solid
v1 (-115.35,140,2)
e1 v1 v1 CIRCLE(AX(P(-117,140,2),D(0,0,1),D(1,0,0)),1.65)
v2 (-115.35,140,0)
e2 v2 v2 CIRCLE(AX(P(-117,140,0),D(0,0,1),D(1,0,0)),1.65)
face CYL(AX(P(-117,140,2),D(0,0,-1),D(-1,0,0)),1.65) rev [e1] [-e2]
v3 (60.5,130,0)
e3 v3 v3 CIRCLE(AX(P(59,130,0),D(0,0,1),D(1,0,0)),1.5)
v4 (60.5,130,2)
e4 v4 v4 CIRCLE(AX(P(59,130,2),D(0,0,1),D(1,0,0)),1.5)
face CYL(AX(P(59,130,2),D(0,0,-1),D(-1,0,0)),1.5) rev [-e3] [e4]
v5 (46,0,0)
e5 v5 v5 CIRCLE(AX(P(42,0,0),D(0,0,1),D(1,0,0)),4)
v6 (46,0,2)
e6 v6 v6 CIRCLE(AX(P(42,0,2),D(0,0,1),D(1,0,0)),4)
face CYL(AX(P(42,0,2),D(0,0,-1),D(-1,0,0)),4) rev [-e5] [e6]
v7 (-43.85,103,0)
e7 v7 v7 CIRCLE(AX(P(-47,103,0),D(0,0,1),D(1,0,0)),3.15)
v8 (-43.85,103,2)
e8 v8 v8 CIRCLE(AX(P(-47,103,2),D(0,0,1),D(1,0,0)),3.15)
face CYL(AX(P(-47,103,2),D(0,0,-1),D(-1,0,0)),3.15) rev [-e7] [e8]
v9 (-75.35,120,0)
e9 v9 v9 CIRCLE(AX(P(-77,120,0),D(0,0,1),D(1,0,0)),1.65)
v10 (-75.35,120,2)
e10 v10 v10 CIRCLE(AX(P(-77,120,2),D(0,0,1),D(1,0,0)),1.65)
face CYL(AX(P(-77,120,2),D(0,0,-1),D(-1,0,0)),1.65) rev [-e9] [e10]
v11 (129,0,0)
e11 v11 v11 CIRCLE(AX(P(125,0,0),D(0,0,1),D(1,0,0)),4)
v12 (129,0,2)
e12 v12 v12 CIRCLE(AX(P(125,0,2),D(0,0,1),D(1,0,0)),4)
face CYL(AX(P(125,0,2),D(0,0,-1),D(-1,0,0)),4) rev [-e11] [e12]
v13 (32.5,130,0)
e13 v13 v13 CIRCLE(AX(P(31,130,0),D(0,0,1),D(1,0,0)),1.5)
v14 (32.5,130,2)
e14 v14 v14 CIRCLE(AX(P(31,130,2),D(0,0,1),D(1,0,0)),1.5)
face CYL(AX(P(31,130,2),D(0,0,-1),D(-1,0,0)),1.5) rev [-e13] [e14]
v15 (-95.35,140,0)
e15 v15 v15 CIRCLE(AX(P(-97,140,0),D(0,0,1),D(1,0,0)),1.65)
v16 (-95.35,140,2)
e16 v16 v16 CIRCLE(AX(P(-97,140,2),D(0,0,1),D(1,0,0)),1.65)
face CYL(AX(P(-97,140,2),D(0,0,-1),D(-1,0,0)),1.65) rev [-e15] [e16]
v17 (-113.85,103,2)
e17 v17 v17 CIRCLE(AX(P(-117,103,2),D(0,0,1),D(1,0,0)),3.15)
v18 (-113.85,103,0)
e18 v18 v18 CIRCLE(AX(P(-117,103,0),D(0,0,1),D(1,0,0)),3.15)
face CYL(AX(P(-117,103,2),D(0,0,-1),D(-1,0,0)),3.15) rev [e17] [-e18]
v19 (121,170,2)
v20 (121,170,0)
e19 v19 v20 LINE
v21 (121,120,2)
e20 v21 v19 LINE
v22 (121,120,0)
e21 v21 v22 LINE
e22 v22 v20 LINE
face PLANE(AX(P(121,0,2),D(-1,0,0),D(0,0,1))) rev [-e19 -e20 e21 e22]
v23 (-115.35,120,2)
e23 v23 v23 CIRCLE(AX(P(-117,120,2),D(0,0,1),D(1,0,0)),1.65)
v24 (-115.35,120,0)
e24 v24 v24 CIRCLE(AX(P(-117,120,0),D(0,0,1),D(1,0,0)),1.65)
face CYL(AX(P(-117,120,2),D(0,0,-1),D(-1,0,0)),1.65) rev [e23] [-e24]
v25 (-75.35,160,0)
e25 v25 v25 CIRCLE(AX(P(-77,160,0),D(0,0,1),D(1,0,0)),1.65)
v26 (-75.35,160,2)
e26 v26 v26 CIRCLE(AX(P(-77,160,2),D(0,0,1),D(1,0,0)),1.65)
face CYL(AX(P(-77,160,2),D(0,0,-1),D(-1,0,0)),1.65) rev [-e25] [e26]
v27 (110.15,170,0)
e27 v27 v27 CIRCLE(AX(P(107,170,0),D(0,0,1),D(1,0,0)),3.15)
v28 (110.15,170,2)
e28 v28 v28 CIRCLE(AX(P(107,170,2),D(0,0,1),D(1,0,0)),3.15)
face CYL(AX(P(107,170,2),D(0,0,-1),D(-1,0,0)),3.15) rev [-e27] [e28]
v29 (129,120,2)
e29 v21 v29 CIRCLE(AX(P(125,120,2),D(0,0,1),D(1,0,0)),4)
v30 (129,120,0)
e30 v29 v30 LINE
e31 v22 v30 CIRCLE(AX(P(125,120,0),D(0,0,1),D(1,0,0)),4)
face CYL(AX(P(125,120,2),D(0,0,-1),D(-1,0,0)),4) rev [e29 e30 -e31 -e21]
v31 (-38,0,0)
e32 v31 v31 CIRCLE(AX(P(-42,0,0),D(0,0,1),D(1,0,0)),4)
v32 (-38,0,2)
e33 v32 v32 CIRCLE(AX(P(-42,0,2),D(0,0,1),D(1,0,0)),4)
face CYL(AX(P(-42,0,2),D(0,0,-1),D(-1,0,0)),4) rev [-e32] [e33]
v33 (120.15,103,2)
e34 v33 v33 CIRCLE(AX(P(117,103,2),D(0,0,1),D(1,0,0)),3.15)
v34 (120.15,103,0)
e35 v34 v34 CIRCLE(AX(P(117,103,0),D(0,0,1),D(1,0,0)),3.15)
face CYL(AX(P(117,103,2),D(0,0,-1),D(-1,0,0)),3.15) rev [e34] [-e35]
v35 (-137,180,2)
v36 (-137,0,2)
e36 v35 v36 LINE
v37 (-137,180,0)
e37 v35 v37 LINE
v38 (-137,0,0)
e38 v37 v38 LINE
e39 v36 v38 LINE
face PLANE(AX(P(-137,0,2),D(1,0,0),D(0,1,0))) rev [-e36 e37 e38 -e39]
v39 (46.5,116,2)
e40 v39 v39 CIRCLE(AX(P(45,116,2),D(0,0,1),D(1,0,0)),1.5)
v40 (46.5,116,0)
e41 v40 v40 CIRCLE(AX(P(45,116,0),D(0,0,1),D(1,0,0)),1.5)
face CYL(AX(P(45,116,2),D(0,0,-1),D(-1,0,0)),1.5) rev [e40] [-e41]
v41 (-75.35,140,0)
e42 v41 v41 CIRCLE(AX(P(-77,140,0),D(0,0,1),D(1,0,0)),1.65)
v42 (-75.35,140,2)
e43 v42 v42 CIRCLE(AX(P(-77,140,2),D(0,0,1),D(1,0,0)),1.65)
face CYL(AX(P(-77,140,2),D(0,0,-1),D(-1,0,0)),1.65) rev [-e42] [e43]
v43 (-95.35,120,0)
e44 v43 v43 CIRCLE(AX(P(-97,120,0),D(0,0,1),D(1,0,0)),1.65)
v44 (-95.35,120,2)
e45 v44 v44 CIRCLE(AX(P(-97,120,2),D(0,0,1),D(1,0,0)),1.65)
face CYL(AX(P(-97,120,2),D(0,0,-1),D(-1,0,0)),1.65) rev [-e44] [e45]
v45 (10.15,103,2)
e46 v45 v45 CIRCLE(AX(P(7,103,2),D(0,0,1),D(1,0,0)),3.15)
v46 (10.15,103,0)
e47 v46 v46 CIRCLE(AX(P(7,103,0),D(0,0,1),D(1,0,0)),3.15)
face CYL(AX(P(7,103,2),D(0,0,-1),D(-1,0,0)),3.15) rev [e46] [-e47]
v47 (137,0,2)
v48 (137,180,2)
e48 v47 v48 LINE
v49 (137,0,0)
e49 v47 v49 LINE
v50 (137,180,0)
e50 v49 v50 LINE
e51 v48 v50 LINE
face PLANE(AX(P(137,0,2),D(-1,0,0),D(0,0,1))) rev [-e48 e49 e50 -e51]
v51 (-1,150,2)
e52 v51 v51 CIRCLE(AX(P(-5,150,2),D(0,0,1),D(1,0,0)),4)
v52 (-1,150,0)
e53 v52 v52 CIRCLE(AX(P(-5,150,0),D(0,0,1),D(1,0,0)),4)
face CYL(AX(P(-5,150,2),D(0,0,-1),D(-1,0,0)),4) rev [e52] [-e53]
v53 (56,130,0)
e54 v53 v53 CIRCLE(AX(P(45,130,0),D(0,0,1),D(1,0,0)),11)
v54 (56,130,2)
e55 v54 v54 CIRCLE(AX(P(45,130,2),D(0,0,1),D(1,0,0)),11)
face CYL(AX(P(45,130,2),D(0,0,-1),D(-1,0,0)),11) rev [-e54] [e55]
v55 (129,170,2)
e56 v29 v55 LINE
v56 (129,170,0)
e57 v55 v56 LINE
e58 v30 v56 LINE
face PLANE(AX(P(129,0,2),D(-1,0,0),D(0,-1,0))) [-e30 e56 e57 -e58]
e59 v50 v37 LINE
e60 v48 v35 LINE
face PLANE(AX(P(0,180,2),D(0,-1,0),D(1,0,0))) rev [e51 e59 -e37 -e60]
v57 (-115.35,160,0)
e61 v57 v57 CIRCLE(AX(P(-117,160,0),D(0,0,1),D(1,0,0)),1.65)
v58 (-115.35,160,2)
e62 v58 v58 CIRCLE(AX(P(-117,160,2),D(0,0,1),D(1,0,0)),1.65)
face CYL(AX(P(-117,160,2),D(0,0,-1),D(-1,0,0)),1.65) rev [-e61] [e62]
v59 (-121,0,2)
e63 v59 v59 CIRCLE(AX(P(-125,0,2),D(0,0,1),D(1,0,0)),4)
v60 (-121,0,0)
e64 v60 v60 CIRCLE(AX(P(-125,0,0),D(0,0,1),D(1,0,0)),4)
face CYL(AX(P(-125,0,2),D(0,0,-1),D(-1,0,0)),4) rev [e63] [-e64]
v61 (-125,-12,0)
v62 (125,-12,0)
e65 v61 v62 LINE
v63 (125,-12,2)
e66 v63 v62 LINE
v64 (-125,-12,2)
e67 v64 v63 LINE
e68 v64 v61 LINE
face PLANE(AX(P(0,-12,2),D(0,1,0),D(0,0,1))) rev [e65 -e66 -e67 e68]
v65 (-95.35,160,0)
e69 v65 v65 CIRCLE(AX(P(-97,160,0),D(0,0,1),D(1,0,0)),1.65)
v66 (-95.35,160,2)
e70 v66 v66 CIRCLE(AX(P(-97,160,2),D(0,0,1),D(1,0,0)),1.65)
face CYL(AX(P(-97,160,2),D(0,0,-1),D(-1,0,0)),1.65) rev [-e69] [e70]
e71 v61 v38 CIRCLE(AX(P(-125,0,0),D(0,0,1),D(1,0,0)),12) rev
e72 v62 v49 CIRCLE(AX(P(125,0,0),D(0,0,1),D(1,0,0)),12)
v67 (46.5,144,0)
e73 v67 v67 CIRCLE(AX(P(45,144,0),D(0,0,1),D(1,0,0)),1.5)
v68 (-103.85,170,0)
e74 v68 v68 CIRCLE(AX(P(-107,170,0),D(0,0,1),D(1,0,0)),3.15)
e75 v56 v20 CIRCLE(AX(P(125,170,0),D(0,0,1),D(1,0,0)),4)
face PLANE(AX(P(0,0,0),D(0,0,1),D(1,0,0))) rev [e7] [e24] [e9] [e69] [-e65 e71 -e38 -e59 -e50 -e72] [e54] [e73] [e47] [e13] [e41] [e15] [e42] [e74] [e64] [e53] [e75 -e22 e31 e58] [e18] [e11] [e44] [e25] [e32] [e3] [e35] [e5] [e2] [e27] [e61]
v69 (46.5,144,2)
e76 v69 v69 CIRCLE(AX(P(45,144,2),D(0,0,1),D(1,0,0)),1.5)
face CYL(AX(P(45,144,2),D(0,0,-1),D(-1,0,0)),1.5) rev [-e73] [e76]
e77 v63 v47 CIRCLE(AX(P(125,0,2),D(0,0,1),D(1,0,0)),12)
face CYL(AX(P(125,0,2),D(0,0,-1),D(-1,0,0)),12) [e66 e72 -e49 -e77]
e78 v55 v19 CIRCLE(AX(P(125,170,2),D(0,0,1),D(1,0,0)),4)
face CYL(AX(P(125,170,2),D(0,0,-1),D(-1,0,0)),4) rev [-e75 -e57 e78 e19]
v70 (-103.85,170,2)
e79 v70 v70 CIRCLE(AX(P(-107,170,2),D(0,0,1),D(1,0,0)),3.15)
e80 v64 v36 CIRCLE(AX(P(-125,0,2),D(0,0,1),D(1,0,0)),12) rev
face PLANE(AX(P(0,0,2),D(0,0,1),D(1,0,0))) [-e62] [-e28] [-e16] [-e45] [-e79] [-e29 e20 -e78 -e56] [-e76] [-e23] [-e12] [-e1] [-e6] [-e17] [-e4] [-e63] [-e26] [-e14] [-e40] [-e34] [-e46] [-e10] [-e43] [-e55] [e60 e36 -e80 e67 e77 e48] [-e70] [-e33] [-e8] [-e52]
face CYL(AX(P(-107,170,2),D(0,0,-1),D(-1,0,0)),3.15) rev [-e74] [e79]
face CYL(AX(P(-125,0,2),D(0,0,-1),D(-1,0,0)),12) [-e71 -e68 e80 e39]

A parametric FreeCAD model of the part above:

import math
import FreeCAD as App
import Part
import Sketcher
Q = App.Units.Quantity

doc = App.newDocument("Part")
body = doc.addObject("PartDesign::Body", "Body")

sketch1 = doc.addObject("Sketcher::SketchObject", "Sketch")
body.addObject(sketch1)
sketch1.AttachmentSupport = (doc.XY_Plane, [""])
sketch1.MapMode = "FlatFace"
sketch1.addGeometry([
    Part.ArcOfCircle(Part.Circle(App.Vector(-125, 0, 0), App.Vector(0, 0, 1), 12), math.radians(-180), math.radians(-90)),
    Part.LineSegment(App.Vector(-125, -12, 0), App.Vector(125, -12, 0)),
    Part.ArcOfCircle(Part.Circle(App.Vector(125, 0, 0), App.Vector(0, 0, 1), 12), math.radians(-90), math.radians(0)),
    Part.LineSegment(App.Vector(137, 0, 0), App.Vector(137, 180, 0)),
    Part.LineSegment(App.Vector(137, 180, 0), App.Vector(-137, 180, 0)),
    Part.LineSegment(App.Vector(-137, 180, 0), App.Vector(-137, 0, 0)),
    Part.Circle(App.Vector(-125, 0, 0), App.Vector(0, 0, 1), 4),
    Part.Circle(App.Vector(-42, 0, 0), App.Vector(0, 0, 1), 4),
    Part.Circle(App.Vector(42, 0, 0), App.Vector(0, 0, 1), 4),
    Part.Circle(App.Vector(125, 0, 0), App.Vector(0, 0, 1), 4),
    Part.Circle(App.Vector(-117, 103, 0), App.Vector(0, 0, 1), 3.15),
    Part.Circle(App.Vector(-117, 120, 0), App.Vector(0, 0, 1), 1.65),
    Part.Circle(App.Vector(-97, 120, 0), App.Vector(0, 0, 1), 1.65),
    Part.Circle(App.Vector(-77, 120, 0), App.Vector(0, 0, 1), 1.65),
    Part.Circle(App.Vector(-47, 103, 0), App.Vector(0, 0, 1), 3.15),
    Part.Circle(App.Vector(-117, 140, 0), App.Vector(0, 0, 1), 1.65),
    Part.Circle(App.Vector(-97, 140, 0), App.Vector(0, 0, 1), 1.65),
    Part.Circle(App.Vector(-77, 140, 0), App.Vector(0, 0, 1), 1.65),
    Part.Circle(App.Vector(-117, 160, 0), App.Vector(0, 0, 1), 1.65),
    Part.Circle(App.Vector(-97, 160, 0), App.Vector(0, 0, 1), 1.65),
    Part.Circle(App.Vector(-107, 170, 0), App.Vector(0, 0, 1), 3.15),
    Part.Circle(App.Vector(-77, 160, 0), App.Vector(0, 0, 1), 1.65),
    Part.Circle(App.Vector(-5, 150, 0), App.Vector(0, 0, 1), 4),
    Part.Circle(App.Vector(7, 103, 0), App.Vector(0, 0, 1), 3.15),
    Part.Circle(App.Vector(45, 116, 0), App.Vector(0, 0, 1), 1.5),
    Part.Circle(App.Vector(117, 103, 0), App.Vector(0, 0, 1), 3.15),
    Part.Circle(App.Vector(31, 130, 0), App.Vector(0, 0, 1), 1.5),
    Part.Circle(App.Vector(45, 130, 0), App.Vector(0, 0, 1), 11),
    Part.Circle(App.Vector(59, 130, 0), App.Vector(0, 0, 1), 1.5),
    Part.Circle(App.Vector(45, 144, 0), App.Vector(0, 0, 1), 1.5),
    Part.LineSegment(App.Vector(129, 170, 0), App.Vector(129, 120, 0)),
    Part.ArcOfCircle(Part.Circle(App.Vector(125, 120, 0), App.Vector(0, 0, 1), 4), math.radians(180), math.radians(360)),
    Part.LineSegment(App.Vector(121, 120, 0), App.Vector(121, 170, 0)),
    Part.ArcOfCircle(Part.Circle(App.Vector(125, 170, 0), App.Vector(0, 0, 1), 4), math.radians(0), math.radians(180)),
    Part.Circle(App.Vector(107, 170, 0), App.Vector(0, 0, 1), 3.15),
], False)
sketch1.addConstraint([
    Sketcher.Constraint("Tangent", 0, 2, 1, 1),
    Sketcher.Constraint("Tangent", 1, 2, 2, 1),
    Sketcher.Constraint("Tangent", 2, 2, 3, 1),
    Sketcher.Constraint("Coincident", 3, 2, 4, 1),
    Sketcher.Constraint("Coincident", 4, 2, 5, 1),
    Sketcher.Constraint("Tangent", 5, 2, 0, 1),
    Sketcher.Constraint("Tangent", 30, 2, 31, 2),
    Sketcher.Constraint("Tangent", 31, 1, 32, 1),
    Sketcher.Constraint("Tangent", 32, 2, 33, 2),
    Sketcher.Constraint("Tangent", 33, 1, 30, 1),
    Sketcher.Constraint("Horizontal", 1),
    Sketcher.Constraint("Vertical", 3),
    Sketcher.Constraint("Horizontal", 4),
    Sketcher.Constraint("Vertical", 5),
    Sketcher.Constraint("Vertical", 30),
    Sketcher.Constraint("Vertical", 32),
    Sketcher.Constraint("Coincident", 6, 3, 0, 3),
    Sketcher.Constraint("Coincident", 9, 3, 2, 3),
    Sketcher.Constraint("Equal", 0, 2),
    Sketcher.Constraint("Equal", 6, 7),
    Sketcher.Constraint("Equal", 7, 8),
    Sketcher.Constraint("Equal", 8, 9),
    Sketcher.Constraint("Equal", 11, 12),
    Sketcher.Constraint("Equal", 12, 13),
    Sketcher.Constraint("Equal", 10, 14),
    Sketcher.Constraint("Equal", 13, 15),
    Sketcher.Constraint("Equal", 15, 16),
    Sketcher.Constraint("Equal", 16, 17),
    Sketcher.Constraint("Equal", 17, 18),
    Sketcher.Constraint("Equal", 18, 19),
    Sketcher.Constraint("Equal", 14, 20),
    Sketcher.Constraint("Equal", 19, 21),
    Sketcher.Constraint("Equal", 9, 22),
    Sketcher.Constraint("Equal", 20, 23),
    Sketcher.Constraint("Equal", 23, 25),
    Sketcher.Constraint("Equal", 24, 26),
    Sketcher.Constraint("Equal", 26, 28),
    Sketcher.Constraint("Equal", 28, 29),
    Sketcher.Constraint("Equal", 22, 31),
    Sketcher.Constraint("Equal", 25, 34),
    Sketcher.Constraint("Symmetric", 0, 3, 2, 3, -1, 1),
    Sketcher.Constraint("Symmetric", 7, 3, 8, 3, -1, 1),
    Sketcher.Constraint("Symmetric", 10, 3, 25, 3, -2),
    Sketcher.Constraint("Symmetric", 20, 3, 34, 3, -2),
    Sketcher.Constraint("PointOnObject", 7, 3, -1),
    Sketcher.Constraint("Horizontal", 11, 3, 12, 3),
    Sketcher.Constraint("Horizontal", 12, 3, 13, 3),
    Sketcher.Constraint("Horizontal", 10, 3, 14, 3),
    Sketcher.Constraint("Horizontal", 15, 3, 16, 3),
    Sketcher.Constraint("Horizontal", 16, 3, 17, 3),
    Sketcher.Constraint("Horizontal", 18, 3, 19, 3),
    Sketcher.Constraint("Horizontal", 19, 3, 21, 3),
    Sketcher.Constraint("Horizontal", 14, 3, 23, 3),
    Sketcher.Constraint("Horizontal", 26, 3, 27, 3),
    Sketcher.Constraint("Horizontal", 27, 3, 28, 3),
    Sketcher.Constraint("Horizontal", 13, 3, 31, 3),
    Sketcher.Constraint("Horizontal", 20, 3, 33, 3),
    Sketcher.Constraint("Vertical", 10, 3, 11, 3),
    Sketcher.Constraint("Vertical", 11, 3, 15, 3),
    Sketcher.Constraint("Vertical", 12, 3, 16, 3),
    Sketcher.Constraint("Vertical", 13, 3, 17, 3),
    Sketcher.Constraint("Vertical", 15, 3, 18, 3),
    Sketcher.Constraint("Vertical", 16, 3, 19, 3),
    Sketcher.Constraint("Vertical", 17, 3, 21, 3),
    Sketcher.Constraint("Vertical", 24, 3, 27, 3),
    Sketcher.Constraint("Vertical", 27, 3, 29, 3),
    Sketcher.Constraint("Vertical", 9, 3, 31, 3),
    Sketcher.Constraint("Diameter", 6, Q("8 mm")),
    Sketcher.Constraint("Diameter", 24, Q("3 mm")),
    Sketcher.Constraint("Diameter", 27, Q("22 mm")),
    Sketcher.Constraint("Radius", 0, Q("12 mm")),
    Sketcher.Constraint("Diameter", 10, Q("6.3 mm")),
    Sketcher.Constraint("Diameter", 11, Q("3.3 mm")),
    Sketcher.Constraint("DistanceX", 1, 1, 1, 2, Q("250 mm")),
    Sketcher.Constraint("DistanceY", 3, 1, 3, 2, Q("180 mm")),
    Sketcher.Constraint("DistanceY", 30, 2, 30, 1, Q("50 mm")),
    Sketcher.Constraint("DistanceX", 7, 3, -1, 1, Q("42 mm")),
    Sketcher.Constraint("DistanceX", 10, 3, -1, 1, Q("117 mm")),
    Sketcher.Constraint("DistanceY", -1, 1, 10, 3, Q("103 mm")),
    Sketcher.Constraint("DistanceY", -1, 1, 11, 3, Q("120 mm")),
    Sketcher.Constraint("DistanceX", 12, 3, -1, 1, Q("97 mm")),
    Sketcher.Constraint("DistanceX", 13, 3, -1, 1, Q("77 mm")),
    Sketcher.Constraint("DistanceX", 14, 3, -1, 1, Q("47 mm")),
    Sketcher.Constraint("DistanceY", -1, 1, 15, 3, Q("140 mm")),
    Sketcher.Constraint("DistanceY", -1, 1, 18, 3, Q("160 mm")),
    Sketcher.Constraint("DistanceX", 20, 3, -1, 1, Q("107 mm")),
    Sketcher.Constraint("DistanceX", 22, 3, -1, 1, Q("5 mm")),
    Sketcher.Constraint("DistanceY", -1, 1, 22, 3, Q("150 mm")),
    Sketcher.Constraint("DistanceX", -1, 1, 23, 3, Q("7 mm")),
    Sketcher.Constraint("DistanceX", -1, 1, 24, 3, Q("45 mm")),
    Sketcher.Constraint("DistanceY", -1, 1, 24, 3, Q("116 mm")),
    Sketcher.Constraint("DistanceX", -1, 1, 26, 3, Q("31 mm")),
    Sketcher.Constraint("DistanceY", -1, 1, 26, 3, Q("130 mm")),
    Sketcher.Constraint("DistanceX", -1, 1, 28, 3, Q("59 mm")),
    Sketcher.Constraint("DistanceY", -1, 1, 29, 3, Q("144 mm")),
])
pad1 = doc.addObject("PartDesign::Pad", "Pad")
body.addObject(pad1)
pad1.Profile = sketch1
pad1.Length = 2

doc.recompute()
